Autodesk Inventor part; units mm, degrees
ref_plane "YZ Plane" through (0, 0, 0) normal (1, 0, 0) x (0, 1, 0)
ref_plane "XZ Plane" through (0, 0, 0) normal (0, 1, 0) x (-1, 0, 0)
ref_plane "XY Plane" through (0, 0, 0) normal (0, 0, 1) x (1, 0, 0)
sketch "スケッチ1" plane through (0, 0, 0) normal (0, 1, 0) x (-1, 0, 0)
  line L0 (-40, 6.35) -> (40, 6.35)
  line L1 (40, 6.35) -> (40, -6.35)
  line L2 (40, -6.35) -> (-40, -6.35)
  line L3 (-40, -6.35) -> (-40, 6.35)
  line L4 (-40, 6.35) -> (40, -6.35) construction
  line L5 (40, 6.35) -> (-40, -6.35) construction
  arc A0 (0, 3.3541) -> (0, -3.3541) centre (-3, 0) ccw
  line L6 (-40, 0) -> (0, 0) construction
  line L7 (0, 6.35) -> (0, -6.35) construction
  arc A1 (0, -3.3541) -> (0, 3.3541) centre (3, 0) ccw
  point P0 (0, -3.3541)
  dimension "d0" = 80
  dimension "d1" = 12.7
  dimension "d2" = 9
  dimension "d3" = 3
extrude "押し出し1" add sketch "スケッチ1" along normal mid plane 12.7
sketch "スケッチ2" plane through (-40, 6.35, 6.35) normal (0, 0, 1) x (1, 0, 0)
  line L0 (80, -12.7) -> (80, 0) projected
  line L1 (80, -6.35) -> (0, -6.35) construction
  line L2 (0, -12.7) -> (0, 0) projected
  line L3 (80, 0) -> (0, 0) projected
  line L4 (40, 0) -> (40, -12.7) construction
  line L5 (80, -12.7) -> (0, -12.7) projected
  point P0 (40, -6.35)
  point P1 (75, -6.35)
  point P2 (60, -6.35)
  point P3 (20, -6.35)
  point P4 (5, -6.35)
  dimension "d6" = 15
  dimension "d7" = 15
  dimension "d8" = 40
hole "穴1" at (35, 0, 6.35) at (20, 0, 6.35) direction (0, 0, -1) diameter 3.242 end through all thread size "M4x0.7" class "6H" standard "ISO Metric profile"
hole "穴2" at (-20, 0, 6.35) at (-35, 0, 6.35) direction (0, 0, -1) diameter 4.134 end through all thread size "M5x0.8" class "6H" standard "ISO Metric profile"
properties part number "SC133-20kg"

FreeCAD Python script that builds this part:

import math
import FreeCAD as App
import Part
import Sketcher
from FreeCAD import Vector
Q = App.Units.Quantity

doc = App.newDocument("Part")
body = doc.addObject("PartDesign::Body", "Body")

sketch1 = body.newObject("Sketcher::SketchObject", "Sketch")
sketch1.AttachmentSupport = (doc.getObject("XZ_Plane"), [""])
sketch1.MapMode = "FlatFace"
sketch1.addGeometry([
    Part.LineSegment(Vector(-40, 6.3, 0), Vector(40, 6.3, 0)),
    Part.LineSegment(Vector(40, 6.3, 0), Vector(40, -6.3, 0)),
    Part.LineSegment(Vector(40, -6.3, 0), Vector(-40, -6.3, 0)),
    Part.LineSegment(Vector(-40, -6.3, 0), Vector(-40, 6.3, 0)),
    Part.ArcOfCircle(Part.Circle(Vector(3, 0, 0), Vector(0, 0, 1), 4.5), math.radians(-132), math.radians(132)),
    Part.ArcOfCircle(Part.Circle(Vector(-3, 0, 0), Vector(0, 0, 1), 4.5), math.radians(48), math.radians(312)),
], False)
sketch1.addConstraint([
    Sketcher.Constraint("Coincident", 0, 2, 1, 1),
    Sketcher.Constraint("Coincident", 1, 2, 2, 1),
    Sketcher.Constraint("Coincident", 2, 2, 3, 1),
    Sketcher.Constraint("Coincident", 3, 2, 0, 1),
    Sketcher.Constraint("Coincident", 4, 1, 5, 2),
    Sketcher.Constraint("Coincident", 5, 1, 4, 2),
    Sketcher.Constraint("Horizontal", 0),
    Sketcher.Constraint("Vertical", 1),
    Sketcher.Constraint("Horizontal", 2),
    Sketcher.Constraint("Vertical", 3),
    Sketcher.Constraint("Equal", 4, 5),
    Sketcher.Constraint("Symmetric", 4, 3, 5, 3, -1, 1),
    Sketcher.Constraint("Symmetric", 0, 2, 2, 2, -1, 1),
    Sketcher.Constraint("PointOnObject", 4, 3, -1),
    Sketcher.Constraint("DistanceY", 1, 2, 1, 1, Q("0.5 in")),
    Sketcher.Constraint("Radius", 4, Q("4.5 mm")),
    Sketcher.Constraint("DistanceX", 0, 1, 0, 2, Q("3.1496 in")),
    Sketcher.Constraint("DistanceX", -1, 1, 4, 3, Q("0.1181 in")),
])
pad1 = body.newObject("PartDesign::Pad", "Pad")
pad1.Profile = sketch1
pad1.Length = Q("0.5 in")
pad1.Midplane = True

sketch2 = body.newObject("Sketcher::SketchObject", "Sketch001")
sketch2.AttachmentSupport = (doc.getObject("XY_Plane"), [""])
sketch2.MapMode = "FlatFace"
sketch2.AttachmentOffset = App.Placement(Vector(0, 0, 0.25 * 25.4), App.Rotation())
sketch2.addGeometry([
    Part.Circle(Vector(35, 0, 0), Vector(0, 0, 1), 1.6),
    Part.Circle(Vector(20, 0, 0), Vector(0, 0, 1), 1.6),
], False)
sketch2.addConstraint([
    Sketcher.Constraint("Equal", 0, 1),
    Sketcher.Constraint("PointOnObject", 0, 3, -1),
    Sketcher.Constraint("PointOnObject", 1, 3, -1),
    Sketcher.Constraint("Diameter", 0, Q("3.242 mm")),
    Sketcher.Constraint("DistanceX", -1, 1, 1, 3, Q("0.7874 in")),
    Sketcher.Constraint("DistanceX", -1, 1, 0, 3, Q("35 mm")),
])
doc.recompute()
hole = body.newObject("PartDesign::Hole", "Hole")
hole.Profile = sketch2
hole.ThreadType = "None"
hole.Diameter = 3.242
hole.DepthType = "ThroughAll"

sketch3 = body.newObject("Sketcher::SketchObject", "Sketch002")
sketch3.AttachmentSupport = (doc.getObject("XY_Plane"), [""])
sketch3.MapMode = "FlatFace"
sketch3.AttachmentOffset = App.Placement(Vector(0, 0, 0.25 * 25.4), App.Rotation())
sketch3.addGeometry([
    Part.Circle(Vector(-20, 0, 0), Vector(0, 0, 1), 2.1),
    Part.Circle(Vector(-35, 0, 0), Vector(0, 0, 1), 2.1),
], False)
sketch3.addConstraint([
    Sketcher.Constraint("Equal", 0, 1),
    Sketcher.Constraint("PointOnObject", 0, 3, -1),
    Sketcher.Constraint("PointOnObject", 1, 3, -1),
    Sketcher.Constraint("Diameter", 0, Q("4.134 mm")),
    Sketcher.Constraint("DistanceX", 0, 3, -1, 1, Q("0.7874 in")),
    Sketcher.Constraint("DistanceX", 1, 3, -1, 1, Q("35 mm")),
])
doc.recompute()
hole2 = body.newObject("PartDesign::Hole", "Hole001")
hole2.Profile = sketch3
hole2.ThreadType = "None"
hole2.Diameter = 4.134
hole2.DepthType = "ThroughAll"

doc.recompute()
